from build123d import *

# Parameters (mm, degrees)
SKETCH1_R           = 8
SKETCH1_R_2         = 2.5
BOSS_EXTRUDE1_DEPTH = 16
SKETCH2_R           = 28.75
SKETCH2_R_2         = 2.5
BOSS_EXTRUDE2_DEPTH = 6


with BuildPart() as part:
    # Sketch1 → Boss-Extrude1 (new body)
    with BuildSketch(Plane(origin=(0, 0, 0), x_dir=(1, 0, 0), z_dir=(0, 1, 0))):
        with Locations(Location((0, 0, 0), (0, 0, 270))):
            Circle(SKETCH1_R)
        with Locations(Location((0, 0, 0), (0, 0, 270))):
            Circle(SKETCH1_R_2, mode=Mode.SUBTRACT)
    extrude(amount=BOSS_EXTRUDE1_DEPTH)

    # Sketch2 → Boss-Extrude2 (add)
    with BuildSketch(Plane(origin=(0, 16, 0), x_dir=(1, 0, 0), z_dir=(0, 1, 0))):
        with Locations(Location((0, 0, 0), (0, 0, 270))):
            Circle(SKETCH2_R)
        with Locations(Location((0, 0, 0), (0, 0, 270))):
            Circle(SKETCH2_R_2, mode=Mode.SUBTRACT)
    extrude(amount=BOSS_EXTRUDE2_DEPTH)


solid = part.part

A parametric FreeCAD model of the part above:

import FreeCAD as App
import Part
import Sketcher

V = App.Vector

doc = App.newDocument("Part")
body = doc.addObject("PartDesign::Body", "Body")

# Sketch on XZ plane
sketch1 = body.newObject("Sketcher::SketchObject", "Sketch")
sketch1.AttachmentSupport = (doc.getObject("XZ_Plane"), [""])
sketch1.MapMode = "FlatFace"
sketch1.addGeometry([
    Part.Circle(V(0, 0, 0), V(0, 0, 1), 8),
    Part.Circle(V(0, 0, 0), V(0, 0, 1), 2.5),
], False)
sketch1.addConstraint([
    Sketcher.Constraint("Coincident", 0, 3, -1, 1),
    Sketcher.Constraint("Coincident", 1, 3, -1, 1),
    Sketcher.Constraint("Diameter", 0, 16.0),
    Sketcher.Constraint("Diameter", 1, 5.0),
])
pad1 = body.newObject("PartDesign::Pad", "Pad")
pad1.Profile = sketch1
pad1.Length = 16
pad1.Reversed = True

# Sketch on XZ plane
sketch2 = body.newObject("Sketcher::SketchObject", "Sketch001")
sketch2.AttachmentSupport = (doc.getObject("XZ_Plane"), [""])
sketch2.MapMode = "FlatFace"
sketch2.AttachmentOffset = App.Placement(V(0, 0, -16), App.Rotation())
sketch2.addGeometry([
    Part.Circle(V(0, 0, 0), V(0, 0, 1), 28.75),
    Part.Circle(V(0, 0, 0), V(0, 0, 1), 2.5),
], False)
sketch2.addConstraint([
    Sketcher.Constraint("Coincident", 0, 3, -1, 1),
    Sketcher.Constraint("Coincident", 1, 3, -1, 1),
    Sketcher.Constraint("Diameter", 1, 5.0),
    Sketcher.Constraint("Diameter", 0, 57.5),
])
pad2 = body.newObject("PartDesign::Pad", "Pad001")
pad2.Profile = sketch2
pad2.Length = 6
pad2.Reversed = True

doc.recompute()
